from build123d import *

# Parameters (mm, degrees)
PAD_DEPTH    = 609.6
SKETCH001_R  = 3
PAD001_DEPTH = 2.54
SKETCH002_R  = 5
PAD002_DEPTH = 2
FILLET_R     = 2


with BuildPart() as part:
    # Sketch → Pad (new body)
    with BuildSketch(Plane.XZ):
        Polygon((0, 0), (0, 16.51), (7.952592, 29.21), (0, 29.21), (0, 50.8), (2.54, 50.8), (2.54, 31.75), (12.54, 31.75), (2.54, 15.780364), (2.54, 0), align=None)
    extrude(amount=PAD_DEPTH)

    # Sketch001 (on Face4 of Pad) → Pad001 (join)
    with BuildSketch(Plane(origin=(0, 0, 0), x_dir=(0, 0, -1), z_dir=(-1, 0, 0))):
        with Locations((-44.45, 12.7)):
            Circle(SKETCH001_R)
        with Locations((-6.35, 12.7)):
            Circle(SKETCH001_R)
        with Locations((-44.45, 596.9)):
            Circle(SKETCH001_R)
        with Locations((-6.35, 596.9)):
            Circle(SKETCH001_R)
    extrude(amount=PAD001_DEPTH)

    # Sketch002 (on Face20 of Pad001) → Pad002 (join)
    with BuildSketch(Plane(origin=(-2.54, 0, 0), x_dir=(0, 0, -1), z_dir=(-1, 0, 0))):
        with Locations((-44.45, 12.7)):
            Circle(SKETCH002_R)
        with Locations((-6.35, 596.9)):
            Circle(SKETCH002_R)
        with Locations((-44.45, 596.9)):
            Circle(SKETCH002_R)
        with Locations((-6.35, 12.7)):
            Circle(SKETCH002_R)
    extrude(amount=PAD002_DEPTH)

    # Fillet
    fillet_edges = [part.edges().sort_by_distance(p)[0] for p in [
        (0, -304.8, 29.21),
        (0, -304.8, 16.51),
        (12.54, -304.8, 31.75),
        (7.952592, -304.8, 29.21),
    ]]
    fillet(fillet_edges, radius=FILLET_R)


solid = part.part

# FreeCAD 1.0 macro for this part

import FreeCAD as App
import Part
import Sketcher
Q = App.Units.Quantity


def edges_at(feature, points):
    """Names of the edges that pass closest to the given points."""
    edges = feature.Shape.Edges
    near = lambda p: min(range(len(edges)), key=lambda i: edges[i].distToShape(Part.Vertex(*p))[0])
    return sorted({f"Edge{near(p) + 1}" for p in points})

doc = App.newDocument("Part")
body = doc.addObject("PartDesign::Body", "Body")

sketch1 = body.newObject("Sketcher::SketchObject", "Sketch")
sketch1.AttachmentSupport = (doc.getObject("XZ_Plane"), [""])
sketch1.MapMode = "FlatFace"
sketch1.addGeometry(Part.LineSegment(App.Vector(0, 16.51, 0), App.Vector(0, 0, 0)), False)
sketch1.addGeometry(Part.LineSegment(App.Vector(0, 0, 0), App.Vector(2.54, 0, 0)), False)
sketch1.addGeometry(Part.LineSegment(App.Vector(2.54, 0, 0), App.Vector(2.54, 15.780364, 0)), False)
sketch1.addGeometry(Part.LineSegment(App.Vector(2.54, 15.780364, 0), App.Vector(12.54, 31.75, 0)), False)
sketch1.addGeometry(Part.LineSegment(App.Vector(12.54, 31.75, 0), App.Vector(2.54, 31.75, 0)), False)
sketch1.addGeometry(Part.LineSegment(App.Vector(2.54, 31.75, 0), App.Vector(2.54, 50.8, 0)), False)
sketch1.addGeometry(Part.LineSegment(App.Vector(2.54, 50.8, 0), App.Vector(0, 50.8, 0)), False)
sketch1.addGeometry(Part.LineSegment(App.Vector(0, 50.8, 0), App.Vector(0, 29.21, 0)), False)
sketch1.addGeometry(Part.LineSegment(App.Vector(0, 29.21, 0), App.Vector(7.952592, 29.21, 0)), False)
sketch1.addGeometry(Part.LineSegment(App.Vector(7.952592, 29.21, 0), App.Vector(0, 16.51, 0)), False)
sketch1.addConstraint(Sketcher.Constraint("Coincident", 0, 2, 1, 1))
sketch1.addConstraint(Sketcher.Constraint("Coincident", 1, 2, 2, 1))
sketch1.addConstraint(Sketcher.Constraint("Coincident", 2, 2, 3, 1))
sketch1.addConstraint(Sketcher.Constraint("Coincident", 3, 2, 4, 1))
sketch1.addConstraint(Sketcher.Constraint("Coincident", 4, 2, 5, 1))
sketch1.addConstraint(Sketcher.Constraint("Coincident", 5, 2, 6, 1))
sketch1.addConstraint(Sketcher.Constraint("Coincident", 6, 2, 7, 1))
sketch1.addConstraint(Sketcher.Constraint("Coincident", 7, 2, 8, 1))
sketch1.addConstraint(Sketcher.Constraint("Coincident", 8, 2, 9, 1))
sketch1.addConstraint(Sketcher.Constraint("Coincident", 9, 2, 0, 1))
sketch1.addConstraint(Sketcher.Constraint("Vertical", 0))
sketch1.addConstraint(Sketcher.Constraint("Horizontal", 1))
sketch1.addConstraint(Sketcher.Constraint("Vertical", 2))
sketch1.addConstraint(Sketcher.Constraint("Horizontal", 4))
sketch1.addConstraint(Sketcher.Constraint("Vertical", 5))
sketch1.addConstraint(Sketcher.Constraint("Horizontal", 6))
sketch1.addConstraint(Sketcher.Constraint("Vertical", 7))
sketch1.addConstraint(Sketcher.Constraint("Horizontal", 8))
sketch1.addConstraint(Sketcher.Constraint("Coincident", 0, 2, -1, 1))
sketch1.addConstraint(Sketcher.Constraint("PointOnObject", 6, 2, -2))
sketch1.addConstraint(Sketcher.Constraint("Parallel", 3, 9))
sketch1.addConstraint(Sketcher.Constraint("Vertical", 2, 2, 4, 2))
sketch1.addConstraint(Sketcher.Constraint("DistanceX", 1, 1, 1, 2, Q("0.1 in")))
sketch1.addConstraint(Sketcher.Constraint("DistanceY", -1, 1, 5, 2, Q("2 in")))
sketch1.addConstraint(Sketcher.Constraint("DistanceY", 0, 2, 0, 1, Q("0.65 in")))
sketch1.addConstraint(Sketcher.Constraint("DistanceY", 5, 1, 5, 2, Q("0.75 in")))
sketch1.addConstraint(Sketcher.Constraint("DistanceY", 7, 2, 7, 1, Q("0.85 in")))
sketch1.addConstraint(Sketcher.Constraint("DistanceX", 4, 2, 4, 1, 10.0))
sketch1.addConstraint(Sketcher.Constraint("Distance", 3, 18.842221))
pad1 = body.newObject("PartDesign::Pad", "Pad")
pad1.Profile = sketch1
pad1.Length = Q("24 in")

sketch2 = body.newObject("Sketcher::SketchObject", "Sketch001")
sketch2.AttachmentSupport = (doc.getObject("YZ_Plane"), [""])
sketch2.MapMode = "FlatFace"
sketch2.addGeometry(Part.Circle(App.Vector(-12.7, 44.45, 0), App.Vector(0, 0, 1), 3), False)
sketch2.addGeometry(Part.Circle(App.Vector(-12.7, 6.35, 0), App.Vector(0, 0, 1), 3), False)
sketch2.addGeometry(Part.Circle(App.Vector(-596.9, 44.45, 0), App.Vector(0, 0, 1), 3), False)
sketch2.addGeometry(Part.Circle(App.Vector(-596.9, 6.35, 0), App.Vector(0, 0, 1), 3), False)
sketch2.addConstraint(Sketcher.Constraint("Equal", 0, 1))
sketch2.addConstraint(Sketcher.Constraint("Equal", 1, 2))
sketch2.addConstraint(Sketcher.Constraint("Equal", 2, 3))
sketch2.addConstraint(Sketcher.Constraint("Horizontal", 0, 3, 2, 3))
sketch2.addConstraint(Sketcher.Constraint("Horizontal", 1, 3, 3, 3))
sketch2.addConstraint(Sketcher.Constraint("Vertical", 0, 3, 1, 3))
sketch2.addConstraint(Sketcher.Constraint("Vertical", 2, 3, 3, 3))
sketch2.addConstraint(Sketcher.Constraint("DistanceX", 2, 3, 0, 3, Q("23 in")))
sketch2.addConstraint(Sketcher.Constraint("DistanceX", 0, 3, -1, 1, Q("0.5 in")))
sketch2.addConstraint(Sketcher.Constraint("DistanceY", 1, 3, 0, 3, Q("1.5 in")))
sketch2.addConstraint(Sketcher.Constraint("Diameter", 0, 6.0))
sketch2.addConstraint(Sketcher.Constraint("DistanceY", -1, 1, 0, 3, Q("1.75 in")))
pad2 = body.newObject("PartDesign::Pad", "Pad001")
pad2.Profile = sketch2
pad2.Length = Q("0.1 in")
pad2.Reversed = True

sketch3 = body.newObject("Sketcher::SketchObject", "Sketch002")
sketch3.AttachmentSupport = (doc.getObject("YZ_Plane"), [""])
sketch3.MapMode = "FlatFace"
sketch3.AttachmentOffset = App.Placement(App.Vector(0, 0, -0.1 * 25.4), App.Rotation())
sketch3.addGeometry(Part.Circle(App.Vector(-12.7, 44.45, 0), App.Vector(0, 0, 1), 5), False)
sketch3.addGeometry(Part.Circle(App.Vector(-596.9, 6.35, 0), App.Vector(0, 0, 1), 5), False)
sketch3.addGeometry(Part.Circle(App.Vector(-596.9, 44.45, 0), App.Vector(0, 0, 1), 5), False)
sketch3.addGeometry(Part.Circle(App.Vector(-12.7, 6.35, 0), App.Vector(0, 0, 1), 5), False)
sketch3.addConstraint(Sketcher.Constraint("Equal", 0, 1))
sketch3.addConstraint(Sketcher.Constraint("Equal", 1, 2))
sketch3.addConstraint(Sketcher.Constraint("Equal", 2, 3))
sketch3.addConstraint(Sketcher.Constraint("Horizontal", 0, 3, 2, 3))
sketch3.addConstraint(Sketcher.Constraint("Horizontal", 1, 3, 3, 3))
sketch3.addConstraint(Sketcher.Constraint("Vertical", 1, 3, 2, 3))
sketch3.addConstraint(Sketcher.Constraint("Vertical", 0, 3, 3, 3))
sketch3.addConstraint(Sketcher.Constraint("DistanceX", 1, 3, 0, 3, Q("23 in")))
sketch3.addConstraint(Sketcher.Constraint("DistanceX", 0, 3, -1, 1, Q("0.5 in")))
sketch3.addConstraint(Sketcher.Constraint("DistanceY", 1, 3, 0, 3, Q("1.5 in")))
sketch3.addConstraint(Sketcher.Constraint("Diameter", 0, 10.0))
sketch3.addConstraint(Sketcher.Constraint("DistanceY", -1, 1, 0, 3, Q("1.75 in")))
pad3 = body.newObject("PartDesign::Pad", "Pad002")
pad3.Profile = sketch3
pad3.Length = 2
pad3.Reversed = True
doc.recompute()

fillet = body.newObject("PartDesign::Fillet", "Fillet")
fillet.Base = (pad3, edges_at(pad3, [
    (0, -304.8, 29.21),
    (0, -304.8, 16.51),
    (12.54, -304.8, 31.75),
    (7.953, -304.8, 29.21),
]))
fillet.Radius = 2

doc.recompute()
